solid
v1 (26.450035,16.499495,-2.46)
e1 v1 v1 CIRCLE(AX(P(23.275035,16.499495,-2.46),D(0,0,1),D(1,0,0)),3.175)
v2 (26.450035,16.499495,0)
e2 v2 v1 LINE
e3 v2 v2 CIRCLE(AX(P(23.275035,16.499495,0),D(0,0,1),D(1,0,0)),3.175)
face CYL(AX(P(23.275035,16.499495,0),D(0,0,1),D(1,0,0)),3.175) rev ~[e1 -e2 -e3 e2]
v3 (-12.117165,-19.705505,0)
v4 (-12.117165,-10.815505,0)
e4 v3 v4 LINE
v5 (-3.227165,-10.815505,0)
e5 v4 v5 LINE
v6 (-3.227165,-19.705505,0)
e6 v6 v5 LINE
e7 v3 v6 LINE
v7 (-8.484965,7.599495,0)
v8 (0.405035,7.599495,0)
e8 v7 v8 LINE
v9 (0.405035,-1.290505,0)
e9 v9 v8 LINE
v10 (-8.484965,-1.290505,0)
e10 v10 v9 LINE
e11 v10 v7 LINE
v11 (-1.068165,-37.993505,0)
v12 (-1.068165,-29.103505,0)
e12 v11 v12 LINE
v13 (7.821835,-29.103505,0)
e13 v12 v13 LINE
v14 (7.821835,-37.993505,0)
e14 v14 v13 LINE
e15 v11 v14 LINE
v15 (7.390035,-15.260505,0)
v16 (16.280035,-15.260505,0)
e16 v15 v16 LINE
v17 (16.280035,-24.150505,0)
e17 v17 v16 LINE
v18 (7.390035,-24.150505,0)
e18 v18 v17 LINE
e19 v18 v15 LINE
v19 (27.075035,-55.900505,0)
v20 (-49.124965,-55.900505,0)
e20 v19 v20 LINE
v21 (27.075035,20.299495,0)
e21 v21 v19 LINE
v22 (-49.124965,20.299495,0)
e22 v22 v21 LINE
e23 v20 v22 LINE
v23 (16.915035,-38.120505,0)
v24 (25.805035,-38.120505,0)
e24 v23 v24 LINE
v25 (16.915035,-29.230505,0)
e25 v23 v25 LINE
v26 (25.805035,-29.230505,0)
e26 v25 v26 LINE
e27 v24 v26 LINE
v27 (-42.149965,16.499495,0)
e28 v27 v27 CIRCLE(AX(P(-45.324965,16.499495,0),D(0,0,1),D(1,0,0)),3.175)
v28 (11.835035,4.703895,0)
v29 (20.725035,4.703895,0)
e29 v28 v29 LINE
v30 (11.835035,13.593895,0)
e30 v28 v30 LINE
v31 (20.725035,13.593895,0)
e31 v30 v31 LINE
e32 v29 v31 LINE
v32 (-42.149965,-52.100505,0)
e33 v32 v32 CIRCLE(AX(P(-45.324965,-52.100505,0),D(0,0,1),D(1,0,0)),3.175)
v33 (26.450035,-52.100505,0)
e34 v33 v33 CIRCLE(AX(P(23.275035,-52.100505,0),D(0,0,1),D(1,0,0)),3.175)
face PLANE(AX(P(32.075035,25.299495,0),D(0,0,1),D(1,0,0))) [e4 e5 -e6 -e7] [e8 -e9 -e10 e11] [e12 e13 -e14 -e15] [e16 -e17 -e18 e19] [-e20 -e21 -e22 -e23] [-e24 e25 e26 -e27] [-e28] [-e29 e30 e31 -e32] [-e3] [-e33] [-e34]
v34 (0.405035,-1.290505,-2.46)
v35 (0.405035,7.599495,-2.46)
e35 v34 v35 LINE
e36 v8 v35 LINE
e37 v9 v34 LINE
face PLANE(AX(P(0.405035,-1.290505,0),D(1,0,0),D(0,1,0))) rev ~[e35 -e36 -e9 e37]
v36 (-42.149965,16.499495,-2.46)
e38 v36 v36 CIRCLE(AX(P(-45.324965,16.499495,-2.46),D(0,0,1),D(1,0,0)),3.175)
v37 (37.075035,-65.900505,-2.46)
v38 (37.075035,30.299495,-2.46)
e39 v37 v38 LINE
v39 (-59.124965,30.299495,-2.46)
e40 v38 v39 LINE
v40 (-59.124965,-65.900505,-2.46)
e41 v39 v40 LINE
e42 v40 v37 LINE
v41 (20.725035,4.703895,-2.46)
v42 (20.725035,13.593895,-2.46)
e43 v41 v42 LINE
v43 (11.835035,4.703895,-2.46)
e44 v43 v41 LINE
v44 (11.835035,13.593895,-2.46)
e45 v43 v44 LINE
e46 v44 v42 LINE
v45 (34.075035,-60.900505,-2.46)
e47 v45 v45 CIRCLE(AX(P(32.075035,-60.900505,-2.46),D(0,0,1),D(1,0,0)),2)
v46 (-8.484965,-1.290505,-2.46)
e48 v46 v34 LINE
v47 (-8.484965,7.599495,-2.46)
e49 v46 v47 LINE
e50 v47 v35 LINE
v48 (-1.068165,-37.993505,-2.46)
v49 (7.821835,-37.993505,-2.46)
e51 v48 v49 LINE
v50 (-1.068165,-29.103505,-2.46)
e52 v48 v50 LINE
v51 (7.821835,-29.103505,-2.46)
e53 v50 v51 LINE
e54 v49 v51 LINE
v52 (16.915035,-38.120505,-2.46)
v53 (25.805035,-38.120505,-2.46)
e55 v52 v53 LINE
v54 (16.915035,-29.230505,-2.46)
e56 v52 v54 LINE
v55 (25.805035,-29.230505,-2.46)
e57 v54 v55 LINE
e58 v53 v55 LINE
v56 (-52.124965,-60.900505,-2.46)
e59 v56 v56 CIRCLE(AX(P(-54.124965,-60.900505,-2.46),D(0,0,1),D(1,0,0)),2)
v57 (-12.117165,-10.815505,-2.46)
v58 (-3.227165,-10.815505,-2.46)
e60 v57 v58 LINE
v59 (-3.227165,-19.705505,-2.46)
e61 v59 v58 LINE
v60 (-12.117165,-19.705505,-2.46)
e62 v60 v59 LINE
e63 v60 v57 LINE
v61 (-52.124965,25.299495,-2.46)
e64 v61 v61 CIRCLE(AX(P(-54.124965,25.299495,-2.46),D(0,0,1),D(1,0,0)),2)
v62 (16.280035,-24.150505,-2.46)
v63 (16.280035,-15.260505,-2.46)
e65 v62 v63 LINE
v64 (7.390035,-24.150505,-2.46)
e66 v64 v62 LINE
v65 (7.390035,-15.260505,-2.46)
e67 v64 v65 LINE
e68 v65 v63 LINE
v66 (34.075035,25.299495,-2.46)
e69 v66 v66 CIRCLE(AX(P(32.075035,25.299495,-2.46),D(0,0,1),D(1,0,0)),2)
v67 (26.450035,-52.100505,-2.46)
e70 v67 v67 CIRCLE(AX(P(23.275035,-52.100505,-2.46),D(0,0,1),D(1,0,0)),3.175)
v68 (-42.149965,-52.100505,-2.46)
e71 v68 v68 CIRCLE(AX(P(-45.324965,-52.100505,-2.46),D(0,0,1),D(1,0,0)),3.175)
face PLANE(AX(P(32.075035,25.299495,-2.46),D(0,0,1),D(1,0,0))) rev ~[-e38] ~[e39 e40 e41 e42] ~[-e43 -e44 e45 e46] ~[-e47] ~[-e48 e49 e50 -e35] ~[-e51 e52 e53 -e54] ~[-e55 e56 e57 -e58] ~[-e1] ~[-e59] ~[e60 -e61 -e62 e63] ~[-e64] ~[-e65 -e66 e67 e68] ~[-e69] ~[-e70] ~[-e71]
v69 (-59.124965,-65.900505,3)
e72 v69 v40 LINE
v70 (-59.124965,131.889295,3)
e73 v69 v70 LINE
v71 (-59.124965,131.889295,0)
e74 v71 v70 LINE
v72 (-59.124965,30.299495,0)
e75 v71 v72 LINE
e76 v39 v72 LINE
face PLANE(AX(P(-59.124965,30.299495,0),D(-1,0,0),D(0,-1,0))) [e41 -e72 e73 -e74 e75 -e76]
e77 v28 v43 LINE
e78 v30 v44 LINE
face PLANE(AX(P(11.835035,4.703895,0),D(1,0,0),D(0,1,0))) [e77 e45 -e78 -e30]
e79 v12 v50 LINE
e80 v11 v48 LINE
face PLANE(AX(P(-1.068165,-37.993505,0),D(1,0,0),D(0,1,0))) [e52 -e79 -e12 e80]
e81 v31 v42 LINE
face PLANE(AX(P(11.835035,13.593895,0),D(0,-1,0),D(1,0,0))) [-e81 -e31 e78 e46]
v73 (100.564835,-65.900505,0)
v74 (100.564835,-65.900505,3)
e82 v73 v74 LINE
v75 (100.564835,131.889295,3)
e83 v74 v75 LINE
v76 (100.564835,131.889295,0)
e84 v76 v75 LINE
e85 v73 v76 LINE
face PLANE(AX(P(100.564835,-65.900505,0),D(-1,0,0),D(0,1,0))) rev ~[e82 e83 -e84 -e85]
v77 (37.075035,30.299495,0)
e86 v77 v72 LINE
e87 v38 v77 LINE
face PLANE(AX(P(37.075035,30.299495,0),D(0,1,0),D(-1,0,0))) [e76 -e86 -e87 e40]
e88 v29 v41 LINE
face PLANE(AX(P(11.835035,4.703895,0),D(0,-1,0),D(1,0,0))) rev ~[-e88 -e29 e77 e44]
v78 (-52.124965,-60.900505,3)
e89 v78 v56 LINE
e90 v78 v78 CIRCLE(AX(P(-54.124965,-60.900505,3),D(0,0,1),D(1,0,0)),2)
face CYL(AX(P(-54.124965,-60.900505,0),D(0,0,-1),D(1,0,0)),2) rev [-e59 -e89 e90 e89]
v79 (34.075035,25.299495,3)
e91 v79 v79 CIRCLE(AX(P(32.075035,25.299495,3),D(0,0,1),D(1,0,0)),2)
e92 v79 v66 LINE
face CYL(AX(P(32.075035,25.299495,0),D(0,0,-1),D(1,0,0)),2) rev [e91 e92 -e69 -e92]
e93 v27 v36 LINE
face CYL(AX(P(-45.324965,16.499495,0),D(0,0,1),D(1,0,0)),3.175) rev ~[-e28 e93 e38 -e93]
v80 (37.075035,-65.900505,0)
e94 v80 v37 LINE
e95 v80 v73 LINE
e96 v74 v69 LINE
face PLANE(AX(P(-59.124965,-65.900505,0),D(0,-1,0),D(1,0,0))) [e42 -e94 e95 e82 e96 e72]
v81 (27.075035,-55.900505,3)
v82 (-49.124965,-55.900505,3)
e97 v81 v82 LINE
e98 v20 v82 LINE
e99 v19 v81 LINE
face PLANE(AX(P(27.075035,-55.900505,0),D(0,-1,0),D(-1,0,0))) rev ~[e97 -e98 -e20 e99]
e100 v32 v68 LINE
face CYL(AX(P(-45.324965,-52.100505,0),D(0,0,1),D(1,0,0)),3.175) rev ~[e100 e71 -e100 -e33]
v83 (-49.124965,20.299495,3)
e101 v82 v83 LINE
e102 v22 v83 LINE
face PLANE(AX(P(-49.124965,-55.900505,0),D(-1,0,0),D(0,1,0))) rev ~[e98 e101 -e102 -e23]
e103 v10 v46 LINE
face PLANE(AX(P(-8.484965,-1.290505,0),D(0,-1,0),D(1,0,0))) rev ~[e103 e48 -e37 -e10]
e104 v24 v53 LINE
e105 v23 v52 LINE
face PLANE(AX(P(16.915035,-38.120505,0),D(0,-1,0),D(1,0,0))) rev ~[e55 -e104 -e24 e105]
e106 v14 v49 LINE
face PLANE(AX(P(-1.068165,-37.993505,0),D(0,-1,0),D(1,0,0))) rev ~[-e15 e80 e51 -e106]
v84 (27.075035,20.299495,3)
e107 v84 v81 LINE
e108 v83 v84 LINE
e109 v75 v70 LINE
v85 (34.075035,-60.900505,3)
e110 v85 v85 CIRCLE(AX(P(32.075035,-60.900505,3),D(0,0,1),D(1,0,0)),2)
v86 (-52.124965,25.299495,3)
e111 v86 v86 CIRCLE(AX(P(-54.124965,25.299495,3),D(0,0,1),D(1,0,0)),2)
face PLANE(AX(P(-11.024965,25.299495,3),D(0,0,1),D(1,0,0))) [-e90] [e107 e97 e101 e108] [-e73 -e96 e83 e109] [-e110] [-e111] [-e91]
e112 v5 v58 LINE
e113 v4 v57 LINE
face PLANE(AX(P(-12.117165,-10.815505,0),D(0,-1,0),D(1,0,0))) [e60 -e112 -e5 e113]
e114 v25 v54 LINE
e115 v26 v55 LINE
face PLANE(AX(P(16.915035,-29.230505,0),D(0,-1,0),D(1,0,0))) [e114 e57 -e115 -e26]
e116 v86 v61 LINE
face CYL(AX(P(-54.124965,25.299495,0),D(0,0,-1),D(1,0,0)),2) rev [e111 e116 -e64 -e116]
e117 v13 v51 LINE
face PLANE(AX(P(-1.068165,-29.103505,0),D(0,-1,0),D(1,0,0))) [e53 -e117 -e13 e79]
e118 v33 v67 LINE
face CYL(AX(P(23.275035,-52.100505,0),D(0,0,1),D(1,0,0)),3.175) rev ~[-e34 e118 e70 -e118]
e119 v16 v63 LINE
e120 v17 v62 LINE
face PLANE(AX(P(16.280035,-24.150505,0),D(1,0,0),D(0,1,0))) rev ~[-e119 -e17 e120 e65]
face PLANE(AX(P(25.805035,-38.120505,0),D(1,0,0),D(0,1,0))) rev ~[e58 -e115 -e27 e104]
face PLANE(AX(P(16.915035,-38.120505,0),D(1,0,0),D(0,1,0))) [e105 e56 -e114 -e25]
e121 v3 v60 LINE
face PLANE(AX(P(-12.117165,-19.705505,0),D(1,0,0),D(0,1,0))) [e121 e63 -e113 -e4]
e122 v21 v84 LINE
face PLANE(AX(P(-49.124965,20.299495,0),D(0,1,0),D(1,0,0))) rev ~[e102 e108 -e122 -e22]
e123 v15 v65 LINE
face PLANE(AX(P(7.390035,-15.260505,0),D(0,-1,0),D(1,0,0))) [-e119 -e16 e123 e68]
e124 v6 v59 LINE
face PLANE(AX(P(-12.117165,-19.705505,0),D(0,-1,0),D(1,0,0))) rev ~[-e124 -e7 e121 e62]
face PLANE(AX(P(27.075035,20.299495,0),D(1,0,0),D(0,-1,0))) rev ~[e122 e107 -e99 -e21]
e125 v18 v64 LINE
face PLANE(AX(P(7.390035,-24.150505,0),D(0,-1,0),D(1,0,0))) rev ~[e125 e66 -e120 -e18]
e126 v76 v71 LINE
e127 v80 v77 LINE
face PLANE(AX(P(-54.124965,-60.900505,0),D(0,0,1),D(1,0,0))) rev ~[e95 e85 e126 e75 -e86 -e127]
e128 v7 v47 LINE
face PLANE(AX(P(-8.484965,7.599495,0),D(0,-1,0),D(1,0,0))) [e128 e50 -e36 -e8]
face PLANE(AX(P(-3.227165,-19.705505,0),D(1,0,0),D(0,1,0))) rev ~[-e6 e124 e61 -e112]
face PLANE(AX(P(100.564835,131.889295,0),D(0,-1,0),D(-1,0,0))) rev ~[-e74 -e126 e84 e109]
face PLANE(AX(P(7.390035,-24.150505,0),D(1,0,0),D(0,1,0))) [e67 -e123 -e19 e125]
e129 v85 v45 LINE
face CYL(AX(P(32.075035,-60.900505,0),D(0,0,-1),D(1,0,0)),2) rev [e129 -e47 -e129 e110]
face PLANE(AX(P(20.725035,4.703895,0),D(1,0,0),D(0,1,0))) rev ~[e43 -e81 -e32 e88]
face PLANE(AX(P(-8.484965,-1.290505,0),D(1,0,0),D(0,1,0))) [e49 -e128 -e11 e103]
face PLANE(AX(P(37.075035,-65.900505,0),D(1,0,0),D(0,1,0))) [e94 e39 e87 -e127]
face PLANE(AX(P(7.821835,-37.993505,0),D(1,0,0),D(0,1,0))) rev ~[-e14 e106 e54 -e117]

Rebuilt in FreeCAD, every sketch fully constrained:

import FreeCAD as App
import Part
import Sketcher
Q = App.Units.Quantity

doc = App.newDocument("Part")
body = doc.addObject("PartDesign::Body", "Body")

sketch1 = body.newObject("Sketcher::SketchObject", "Sketch")
sketch1.AttachmentSupport = (doc.getObject("XY_Plane"), [""])
sketch1.MapMode = "FlatFace"
sketch1.addGeometry([
    Part.LineSegment(App.Vector(37.1, 30.3, 0), App.Vector(-59.1, 30.3, 0)),
    Part.LineSegment(App.Vector(-59.1, 30.3, 0), App.Vector(-59.1, -65.9, 0)),
    Part.LineSegment(App.Vector(-59.1, -65.9, 0), App.Vector(37.1, -65.9, 0)),
    Part.LineSegment(App.Vector(37.1, -65.9, 0), App.Vector(37.1, 30.3, 0)),
    Part.Circle(App.Vector(-54.1, -60.9, 0), App.Vector(0, 0, 1), 2),
    Part.Circle(App.Vector(32.1, -60.9, 0), App.Vector(0, 0, 1), 2),
    Part.Circle(App.Vector(-54.1, 25.3, 0), App.Vector(0, 0, 1), 2),
    Part.LineSegment(App.Vector(27.1, 20.3, 0), App.Vector(27.1, -55.9, 0)),
    Part.LineSegment(App.Vector(27.1, -55.9, 0), App.Vector(-49.1, -55.9, 0)),
    Part.LineSegment(App.Vector(-49.1, -55.9, 0), App.Vector(-49.1, 20.3, 0)),
    Part.LineSegment(App.Vector(-49.1, 20.3, 0), App.Vector(27.1, 20.3, 0)),
    Part.Circle(App.Vector(32.1, 25.3, 0), App.Vector(0, 0, 1), 2),
], False)
sketch1.addConstraint([
    Sketcher.Constraint("Coincident", 0, 2, 1, 1),
    Sketcher.Constraint("Coincident", 1, 2, 2, 1),
    Sketcher.Constraint("Coincident", 2, 2, 3, 1),
    Sketcher.Constraint("Coincident", 3, 2, 0, 1),
    Sketcher.Constraint("Coincident", 7, 2, 8, 1),
    Sketcher.Constraint("Coincident", 8, 2, 9, 1),
    Sketcher.Constraint("Coincident", 9, 2, 10, 1),
    Sketcher.Constraint("Coincident", 10, 2, 7, 1),
    Sketcher.Constraint("Horizontal", 0),
    Sketcher.Constraint("Vertical", 1),
    Sketcher.Constraint("Horizontal", 2),
    Sketcher.Constraint("Vertical", 3),
    Sketcher.Constraint("Vertical", 7),
    Sketcher.Constraint("Horizontal", 8),
    Sketcher.Constraint("Vertical", 9),
    Sketcher.Constraint("Horizontal", 10),
    Sketcher.Constraint("Equal", 4, 5),
    Sketcher.Constraint("Equal", 5, 6),
    Sketcher.Constraint("Equal", 6, 11),
    Sketcher.Constraint("Horizontal", 4, 3, 5, 3),
    Sketcher.Constraint("Horizontal", 6, 3, 11, 3),
    Sketcher.Constraint("Vertical", 4, 3, 6, 3),
    Sketcher.Constraint("Vertical", 5, 3, 11, 3),
    Sketcher.Constraint("Equal", 2, 1),
    Sketcher.Constraint("Equal", 10, 7),
    Sketcher.Constraint("DistanceX", 8, 2, 8, 1, Q("3 in")),
    Sketcher.Constraint("Diameter", 4, Q("4 mm")),
    Sketcher.Constraint("DistanceX", 0, 2, 0, 1, Q("96.2 mm")),
    Sketcher.Constraint("DistanceX", 4, 3, 5, 3, Q("86.2 mm")),
    Sketcher.Constraint("DistanceY", 4, 3, 6, 3, Q("86.2 mm")),
    Sketcher.Constraint("DistanceX", 0, 2, 6, 3, Q("5 mm")),
    Sketcher.Constraint("DistanceY", 6, 3, 0, 2, Q("5 mm")),
    Sketcher.Constraint("DistanceX", 7, 2, 5, 3, Q("5 mm")),
    Sketcher.Constraint("DistanceY", 5, 3, 7, 2, Q("5 mm")),
    Sketcher.Constraint("DistanceX", 4, 3, -1, 1, Q("54.124965 mm")),
    Sketcher.Constraint("DistanceY", 4, 3, -1, 1, Q("60.900505 mm")),
])
pad1 = body.newObject("PartDesign::Pad", "Pad")
pad1.Profile = sketch1
pad1.Length = 3

sketch2 = body.newObject("Sketcher::SketchObject", "Sketch001")
sketch2.AttachmentSupport = (doc.getObject("XY_Plane"), [""])
sketch2.MapMode = "FlatFace"
sketch2.addGeometry([
    Part.LineSegment(App.Vector(37.1, -65.9, 0), App.Vector(37.1, 30.3, 0)),
    Part.LineSegment(App.Vector(37.1, 30.3, 0), App.Vector(-59.1, 30.3, 0)),
    Part.LineSegment(App.Vector(-59.1, 30.3, 0), App.Vector(-59.1, -65.9, 0)),
    Part.LineSegment(App.Vector(-59.1, -65.9, 0), App.Vector(37.1, -65.9, 0)),
    Part.Circle(App.Vector(-54.1, -60.9, 0), App.Vector(0, 0, 1), 2),
    Part.Circle(App.Vector(-45.3, -52.1, 0), App.Vector(0, 0, 1), 3.2),
    Part.Circle(App.Vector(32.1, -60.9, 0), App.Vector(0, 0, 1), 2),
    Part.Circle(App.Vector(23.3, -52.1, 0), App.Vector(0, 0, 1), 3.2),
    Part.LineSegment(App.Vector(7.8, -38, 0), App.Vector(-1.1, -38, 0)),
    Part.LineSegment(App.Vector(-1.1, -38, 0), App.Vector(-1.1, -29.1, 0)),
    Part.LineSegment(App.Vector(-1.1, -29.1, 0), App.Vector(7.8, -29.1, 0)),
    Part.LineSegment(App.Vector(7.8, -29.1, 0), App.Vector(7.8, -38, 0)),
    Part.LineSegment(App.Vector(25.8, -38.1, 0), App.Vector(16.9, -38.1, 0)),
    Part.LineSegment(App.Vector(16.9, -38.1, 0), App.Vector(16.9, -29.2, 0)),
    Part.LineSegment(App.Vector(16.9, -29.2, 0), App.Vector(25.8, -29.2, 0)),
    Part.LineSegment(App.Vector(25.8, -29.2, 0), App.Vector(25.8, -38.1, 0)),
    Part.LineSegment(App.Vector(16.3, -24.2, 0), App.Vector(7.4, -24.2, 0)),
    Part.LineSegment(App.Vector(7.4, -24.2, 0), App.Vector(7.4, -15.3, 0)),
    Part.LineSegment(App.Vector(7.4, -15.3, 0), App.Vector(16.3, -15.3, 0)),
    Part.LineSegment(App.Vector(16.3, -15.3, 0), App.Vector(16.3, -24.2, 0)),
    Part.Circle(App.Vector(-45.3, 16.5, 0), App.Vector(0, 0, 1), 3.2),
    Part.Circle(App.Vector(-54.1, 25.3, 0), App.Vector(0, 0, 1), 2),
    Part.LineSegment(App.Vector(-3.2, -19.7, 0), App.Vector(-12.1, -19.7, 0)),
    Part.LineSegment(App.Vector(-12.1, -19.7, 0), App.Vector(-12.1, -10.8, 0)),
    Part.LineSegment(App.Vector(-12.1, -10.8, 0), App.Vector(-3.2, -10.8, 0)),
    Part.LineSegment(App.Vector(-3.2, -10.8, 0), App.Vector(-3.2, -19.7, 0)),
    Part.LineSegment(App.Vector(0.4, -1.3, 0), App.Vector(-8.5, -1.3, 0)),
    Part.LineSegment(App.Vector(-8.5, -1.3, 0), App.Vector(-8.5, 7.6, 0)),
    Part.LineSegment(App.Vector(-8.5, 7.6, 0), App.Vector(0.4, 7.6, 0)),
    Part.LineSegment(App.Vector(0.4, 7.6, 0), App.Vector(0.4, -1.3, 0)),
    Part.LineSegment(App.Vector(11.8, 13.6, 0), App.Vector(20.7, 13.6, 0)),
    Part.LineSegment(App.Vector(20.7, 13.6, 0), App.Vector(20.7, 4.7, 0)),
    Part.LineSegment(App.Vector(20.7, 4.7, 0), App.Vector(11.8, 4.7, 0)),
    Part.LineSegment(App.Vector(11.8, 4.7, 0), App.Vector(11.8, 13.6, 0)),
    Part.Circle(App.Vector(23.3, 16.5, 0), App.Vector(0, 0, 1), 3.2),
    Part.Circle(App.Vector(32.1, 25.3, 0), App.Vector(0, 0, 1), 2),
], False)
sketch2.addConstraint([
    Sketcher.Constraint("Coincident", 0, 2, 1, 1),
    Sketcher.Constraint("Coincident", 1, 2, 2, 1),
    Sketcher.Constraint("Coincident", 2, 2, 3, 1),
    Sketcher.Constraint("Coincident", 3, 2, 0, 1),
    Sketcher.Constraint("Coincident", 8, 2, 9, 1),
    Sketcher.Constraint("Coincident", 9, 2, 10, 1),
    Sketcher.Constraint("Coincident", 10, 2, 11, 1),
    Sketcher.Constraint("Coincident", 11, 2, 8, 1),
    Sketcher.Constraint("Coincident", 12, 2, 13, 1),
    Sketcher.Constraint("Coincident", 13, 2, 14, 1),
    Sketcher.Constraint("Coincident", 14, 2, 15, 1),
    Sketcher.Constraint("Coincident", 15, 2, 12, 1),
    Sketcher.Constraint("Coincident", 16, 2, 17, 1),
    Sketcher.Constraint("Coincident", 17, 2, 18, 1),
    Sketcher.Constraint("Coincident", 18, 2, 19, 1),
    Sketcher.Constraint("Coincident", 19, 2, 16, 1),
    Sketcher.Constraint("Coincident", 22, 2, 23, 1),
    Sketcher.Constraint("Coincident", 23, 2, 24, 1),
    Sketcher.Constraint("Coincident", 24, 2, 25, 1),
    Sketcher.Constraint("Coincident", 25, 2, 22, 1),
    Sketcher.Constraint("Coincident", 26, 2, 27, 1),
    Sketcher.Constraint("Coincident", 27, 2, 28, 1),
    Sketcher.Constraint("Coincident", 28, 2, 29, 1),
    Sketcher.Constraint("Coincident", 29, 2, 26, 1),
    Sketcher.Constraint("Coincident", 30, 2, 31, 1),
    Sketcher.Constraint("Coincident", 31, 2, 32, 1),
    Sketcher.Constraint("Coincident", 32, 2, 33, 1),
    Sketcher.Constraint("Coincident", 33, 2, 30, 1),
    Sketcher.Constraint("Vertical", 0),
    Sketcher.Constraint("Horizontal", 1),
    Sketcher.Constraint("Vertical", 2),
    Sketcher.Constraint("Horizontal", 3),
    Sketcher.Constraint("Horizontal", 8),
    Sketcher.Constraint("Vertical", 9),
    Sketcher.Constraint("Horizontal", 10),
    Sketcher.Constraint("Vertical", 11),
    Sketcher.Constraint("Horizontal", 12),
    Sketcher.Constraint("Vertical", 13),
    Sketcher.Constraint("Horizontal", 14),
    Sketcher.Constraint("Vertical", 15),
    Sketcher.Constraint("Horizontal", 16),
    Sketcher.Constraint("Vertical", 17),
    Sketcher.Constraint("Horizontal", 18),
    Sketcher.Constraint("Vertical", 19),
    Sketcher.Constraint("Horizontal", 22),
    Sketcher.Constraint("Vertical", 23),
    Sketcher.Constraint("Horizontal", 24),
    Sketcher.Constraint("Vertical", 25),
    Sketcher.Constraint("Horizontal", 26),
    Sketcher.Constraint("Vertical", 27),
    Sketcher.Constraint("Horizontal", 28),
    Sketcher.Constraint("Vertical", 29),
    Sketcher.Constraint("Horizontal", 30),
    Sketcher.Constraint("Vertical", 31),
    Sketcher.Constraint("Horizontal", 32),
    Sketcher.Constraint("Vertical", 33),
    Sketcher.Constraint("Equal", 4, 6),
    Sketcher.Constraint("Equal", 5, 7),
    Sketcher.Constraint("Equal", 7, 20),
    Sketcher.Constraint("Equal", 6, 21),
    Sketcher.Constraint("Equal", 20, 34),
    Sketcher.Constraint("Equal", 21, 35),
    Sketcher.Constraint("Horizontal", 4, 3, 6, 3),
    Sketcher.Constraint("Horizontal", 5, 3, 7, 3),
    Sketcher.Constraint("Horizontal", 20, 3, 34, 3),
    Sketcher.Constraint("Horizontal", 21, 3, 35, 3),
    Sketcher.Constraint("Vertical", 5, 3, 20, 3),
    Sketcher.Constraint("Vertical", 4, 3, 21, 3),
    Sketcher.Constraint("Vertical", 7, 3, 34, 3),
    Sketcher.Constraint("Vertical", 6, 3, 35, 3),
    Sketcher.Constraint("Equal", 10, 12),
    Sketcher.Constraint("Equal", 14, 16),
    Sketcher.Constraint("Equal", 18, 22),
    Sketcher.Constraint("Equal", 24, 26),
    Sketcher.Constraint("Equal", 28, 30),
    Sketcher.Constraint("Equal", 3, 0),
    Sketcher.Constraint("Equal", 32, 9),
    Sketcher.Constraint("Equal", 11, 13),
    Sketcher.Constraint("Equal", 15, 17),
    Sketcher.Constraint("Equal", 19, 23),
    Sketcher.Constraint("Equal", 25, 27),
    Sketcher.Constraint("Equal", 29, 31),
    Sketcher.Constraint("Diameter", 5, Q("0.25 in")),
    Sketcher.Constraint("DistanceX", 8, 2, 8, 1, Q("0.35 in")),
    Sketcher.Constraint("DistanceY", 13, 2, 16, 2, Q("0.2 in")),
    Sketcher.Constraint("DistanceY", 17, 2, 28, 2, Q("0.9 in")),
    Sketcher.Constraint("DistanceX", 28, 2, 30, 2, Q("0.8 in")),
    Sketcher.Constraint("Diameter", 4, Q("4 mm")),
    Sketcher.Constraint("DistanceY", 9, 2, 22, 2, Q("0.37 in")),
    Sketcher.Constraint("DistanceX", 11, 2, 12, 2, Q("0.358 in")),
    Sketcher.Constraint("DistanceY", 12, 2, 11, 2, Q("0.005 in")),
    Sketcher.Constraint("DistanceX", 16, 2, 10, 2, Q("0.017 in")),
    Sketcher.Constraint("DistanceX", 22, 2, 9, 2, Q("0.435 in")),
    Sketcher.Constraint("DistanceX", 23, 2, 26, 2, Q("0.143 in")),
    Sketcher.Constraint("DistanceY", 28, 2, 30, 2, Q("0.236 in")),
    Sketcher.Constraint("DistanceX", 1, 2, 1, 1, Q("96.2 mm")),
    Sketcher.Constraint("DistanceX", 4, 3, 5, 3, Q("8.8 mm")),
    Sketcher.Constraint("DistanceY", 4, 3, 5, 3, Q("8.8 mm")),
    Sketcher.Constraint("DistanceX", 5, 3, 6, 3, Q("77.4 mm")),
    Sketcher.Constraint("DistanceX", 7, 3, 6, 3, Q("8.8 mm")),
    Sketcher.Constraint("DistanceY", 5, 3, 20, 3, Q("68.6 mm")),
    Sketcher.Constraint("DistanceY", 20, 3, 21, 3, Q("8.8 mm")),
    Sketcher.Constraint("DistanceX", 35, 3, 0, 2, Q("5 mm")),
    Sketcher.Constraint("DistanceY", 35, 3, 0, 2, Q("5 mm")),
    Sketcher.Constraint("DistanceX", 8, 2, 7, 3, Q("24.3432 mm")),
    Sketcher.Constraint("DistanceY", 7, 3, 8, 2, Q("14.107 mm")),
    Sketcher.Constraint("DistanceX", 4, 3, -1, 1, Q("54.124965 mm")),
    Sketcher.Constraint("DistanceY", 4, 3, -1, 1, Q("60.900505 mm")),
])
pad2 = body.newObject("PartDesign::Pad", "Pad001")
pad2.Profile = sketch2
pad2.Length = 2.46
pad2.Reversed = True

sketch3 = body.newObject("Sketcher::SketchObject", "Sketch002")
sketch3.AttachmentSupport = (doc.getObject("XY_Plane"), [""])
sketch3.MapMode = "FlatFace"
sketch3.addGeometry([
    Part.LineSegment(App.Vector(-59.1, -65.9, 0), App.Vector(100.6, -65.9, 0)),
    Part.LineSegment(App.Vector(100.6, -65.9, 0), App.Vector(100.6, 131.9, 0)),
    Part.LineSegment(App.Vector(100.6, 131.9, 0), App.Vector(-59.1, 131.9, 0)),
    Part.LineSegment(App.Vector(-59.1, 131.9, 0), App.Vector(-59.1, -65.9, 0)),
    Part.LineSegment(App.Vector(37.1, -55.9, 0), App.Vector(-49.1, -55.9, 0)),
    Part.LineSegment(App.Vector(-49.1, -55.9, 0), App.Vector(-49.1, 30.3, 0)),
    Part.LineSegment(App.Vector(-49.1, 30.3, 0), App.Vector(37.1, 30.3, 0)),
    Part.LineSegment(App.Vector(37.1, 30.3, 0), App.Vector(37.1, -55.9, 0)),
    Part.Circle(App.Vector(-54.1, -60.9, 0), App.Vector(0, 0, 1), 2),
    Part.Circle(App.Vector(32.1, -60.9, 0), App.Vector(0, 0, 1), 2),
    Part.Circle(App.Vector(-54.1, 25.3, 0), App.Vector(0, 0, 1), 2),
], False)
sketch3.addConstraint([
    Sketcher.Constraint("Coincident", 0, 2, 1, 1),
    Sketcher.Constraint("Coincident", 1, 2, 2, 1),
    Sketcher.Constraint("Coincident", 2, 2, 3, 1),
    Sketcher.Constraint("Coincident", 3, 2, 0, 1),
    Sketcher.Constraint("Coincident", 4, 2, 5, 1),
    Sketcher.Constraint("Coincident", 5, 2, 6, 1),
    Sketcher.Constraint("Coincident", 6, 2, 7, 1),
    Sketcher.Constraint("Coincident", 7, 2, 4, 1),
    Sketcher.Constraint("Horizontal", 0),
    Sketcher.Constraint("Vertical", 1),
    Sketcher.Constraint("Horizontal", 2),
    Sketcher.Constraint("Vertical", 3),
    Sketcher.Constraint("Horizontal", 4),
    Sketcher.Constraint("Vertical", 5),
    Sketcher.Constraint("Horizontal", 6),
    Sketcher.Constraint("Vertical", 7),
    Sketcher.Constraint("Equal", 8, 9),
    Sketcher.Constraint("Equal", 9, 10),
    Sketcher.Constraint("Horizontal", 8, 3, 9, 3),
    Sketcher.Constraint("Vertical", 8, 3, 10, 3),
    Sketcher.Constraint("Equal", 6, 5),
    Sketcher.Constraint("Diameter", 8, Q("4 mm")),
    Sketcher.Constraint("DistanceX", 0, 1, 0, 2, Q("6.287 in")),
    Sketcher.Constraint("DistanceY", 1, 1, 1, 2, Q("7.787 in")),
    Sketcher.Constraint("DistanceX", 4, 2, 4, 1, Q("86.2 mm")),
    Sketcher.Constraint("DistanceX", 8, 3, 9, 3, Q("86.2 mm")),
    Sketcher.Constraint("DistanceY", 8, 3, 10, 3, Q("86.2 mm")),
    Sketcher.Constraint("DistanceX", 9, 3, 0, 2, Q("68.4898 mm")),
    Sketcher.Constraint("DistanceY", 0, 2, 9, 3, Q("5 mm")),
    Sketcher.Constraint("DistanceX", 8, 3, 4, 2, Q("5 mm")),
    Sketcher.Constraint("DistanceY", 8, 3, 4, 2, Q("5 mm")),
    Sketcher.Constraint("DistanceX", 8, 3, -1, 1, Q("54.124965 mm")),
    Sketcher.Constraint("DistanceY", 8, 3, -1, 1, Q("60.900505 mm")),
])
pad3 = body.newObject("PartDesign::Pad", "Pad002")
pad3.Profile = sketch3
pad3.Length = 3

doc.recompute()
